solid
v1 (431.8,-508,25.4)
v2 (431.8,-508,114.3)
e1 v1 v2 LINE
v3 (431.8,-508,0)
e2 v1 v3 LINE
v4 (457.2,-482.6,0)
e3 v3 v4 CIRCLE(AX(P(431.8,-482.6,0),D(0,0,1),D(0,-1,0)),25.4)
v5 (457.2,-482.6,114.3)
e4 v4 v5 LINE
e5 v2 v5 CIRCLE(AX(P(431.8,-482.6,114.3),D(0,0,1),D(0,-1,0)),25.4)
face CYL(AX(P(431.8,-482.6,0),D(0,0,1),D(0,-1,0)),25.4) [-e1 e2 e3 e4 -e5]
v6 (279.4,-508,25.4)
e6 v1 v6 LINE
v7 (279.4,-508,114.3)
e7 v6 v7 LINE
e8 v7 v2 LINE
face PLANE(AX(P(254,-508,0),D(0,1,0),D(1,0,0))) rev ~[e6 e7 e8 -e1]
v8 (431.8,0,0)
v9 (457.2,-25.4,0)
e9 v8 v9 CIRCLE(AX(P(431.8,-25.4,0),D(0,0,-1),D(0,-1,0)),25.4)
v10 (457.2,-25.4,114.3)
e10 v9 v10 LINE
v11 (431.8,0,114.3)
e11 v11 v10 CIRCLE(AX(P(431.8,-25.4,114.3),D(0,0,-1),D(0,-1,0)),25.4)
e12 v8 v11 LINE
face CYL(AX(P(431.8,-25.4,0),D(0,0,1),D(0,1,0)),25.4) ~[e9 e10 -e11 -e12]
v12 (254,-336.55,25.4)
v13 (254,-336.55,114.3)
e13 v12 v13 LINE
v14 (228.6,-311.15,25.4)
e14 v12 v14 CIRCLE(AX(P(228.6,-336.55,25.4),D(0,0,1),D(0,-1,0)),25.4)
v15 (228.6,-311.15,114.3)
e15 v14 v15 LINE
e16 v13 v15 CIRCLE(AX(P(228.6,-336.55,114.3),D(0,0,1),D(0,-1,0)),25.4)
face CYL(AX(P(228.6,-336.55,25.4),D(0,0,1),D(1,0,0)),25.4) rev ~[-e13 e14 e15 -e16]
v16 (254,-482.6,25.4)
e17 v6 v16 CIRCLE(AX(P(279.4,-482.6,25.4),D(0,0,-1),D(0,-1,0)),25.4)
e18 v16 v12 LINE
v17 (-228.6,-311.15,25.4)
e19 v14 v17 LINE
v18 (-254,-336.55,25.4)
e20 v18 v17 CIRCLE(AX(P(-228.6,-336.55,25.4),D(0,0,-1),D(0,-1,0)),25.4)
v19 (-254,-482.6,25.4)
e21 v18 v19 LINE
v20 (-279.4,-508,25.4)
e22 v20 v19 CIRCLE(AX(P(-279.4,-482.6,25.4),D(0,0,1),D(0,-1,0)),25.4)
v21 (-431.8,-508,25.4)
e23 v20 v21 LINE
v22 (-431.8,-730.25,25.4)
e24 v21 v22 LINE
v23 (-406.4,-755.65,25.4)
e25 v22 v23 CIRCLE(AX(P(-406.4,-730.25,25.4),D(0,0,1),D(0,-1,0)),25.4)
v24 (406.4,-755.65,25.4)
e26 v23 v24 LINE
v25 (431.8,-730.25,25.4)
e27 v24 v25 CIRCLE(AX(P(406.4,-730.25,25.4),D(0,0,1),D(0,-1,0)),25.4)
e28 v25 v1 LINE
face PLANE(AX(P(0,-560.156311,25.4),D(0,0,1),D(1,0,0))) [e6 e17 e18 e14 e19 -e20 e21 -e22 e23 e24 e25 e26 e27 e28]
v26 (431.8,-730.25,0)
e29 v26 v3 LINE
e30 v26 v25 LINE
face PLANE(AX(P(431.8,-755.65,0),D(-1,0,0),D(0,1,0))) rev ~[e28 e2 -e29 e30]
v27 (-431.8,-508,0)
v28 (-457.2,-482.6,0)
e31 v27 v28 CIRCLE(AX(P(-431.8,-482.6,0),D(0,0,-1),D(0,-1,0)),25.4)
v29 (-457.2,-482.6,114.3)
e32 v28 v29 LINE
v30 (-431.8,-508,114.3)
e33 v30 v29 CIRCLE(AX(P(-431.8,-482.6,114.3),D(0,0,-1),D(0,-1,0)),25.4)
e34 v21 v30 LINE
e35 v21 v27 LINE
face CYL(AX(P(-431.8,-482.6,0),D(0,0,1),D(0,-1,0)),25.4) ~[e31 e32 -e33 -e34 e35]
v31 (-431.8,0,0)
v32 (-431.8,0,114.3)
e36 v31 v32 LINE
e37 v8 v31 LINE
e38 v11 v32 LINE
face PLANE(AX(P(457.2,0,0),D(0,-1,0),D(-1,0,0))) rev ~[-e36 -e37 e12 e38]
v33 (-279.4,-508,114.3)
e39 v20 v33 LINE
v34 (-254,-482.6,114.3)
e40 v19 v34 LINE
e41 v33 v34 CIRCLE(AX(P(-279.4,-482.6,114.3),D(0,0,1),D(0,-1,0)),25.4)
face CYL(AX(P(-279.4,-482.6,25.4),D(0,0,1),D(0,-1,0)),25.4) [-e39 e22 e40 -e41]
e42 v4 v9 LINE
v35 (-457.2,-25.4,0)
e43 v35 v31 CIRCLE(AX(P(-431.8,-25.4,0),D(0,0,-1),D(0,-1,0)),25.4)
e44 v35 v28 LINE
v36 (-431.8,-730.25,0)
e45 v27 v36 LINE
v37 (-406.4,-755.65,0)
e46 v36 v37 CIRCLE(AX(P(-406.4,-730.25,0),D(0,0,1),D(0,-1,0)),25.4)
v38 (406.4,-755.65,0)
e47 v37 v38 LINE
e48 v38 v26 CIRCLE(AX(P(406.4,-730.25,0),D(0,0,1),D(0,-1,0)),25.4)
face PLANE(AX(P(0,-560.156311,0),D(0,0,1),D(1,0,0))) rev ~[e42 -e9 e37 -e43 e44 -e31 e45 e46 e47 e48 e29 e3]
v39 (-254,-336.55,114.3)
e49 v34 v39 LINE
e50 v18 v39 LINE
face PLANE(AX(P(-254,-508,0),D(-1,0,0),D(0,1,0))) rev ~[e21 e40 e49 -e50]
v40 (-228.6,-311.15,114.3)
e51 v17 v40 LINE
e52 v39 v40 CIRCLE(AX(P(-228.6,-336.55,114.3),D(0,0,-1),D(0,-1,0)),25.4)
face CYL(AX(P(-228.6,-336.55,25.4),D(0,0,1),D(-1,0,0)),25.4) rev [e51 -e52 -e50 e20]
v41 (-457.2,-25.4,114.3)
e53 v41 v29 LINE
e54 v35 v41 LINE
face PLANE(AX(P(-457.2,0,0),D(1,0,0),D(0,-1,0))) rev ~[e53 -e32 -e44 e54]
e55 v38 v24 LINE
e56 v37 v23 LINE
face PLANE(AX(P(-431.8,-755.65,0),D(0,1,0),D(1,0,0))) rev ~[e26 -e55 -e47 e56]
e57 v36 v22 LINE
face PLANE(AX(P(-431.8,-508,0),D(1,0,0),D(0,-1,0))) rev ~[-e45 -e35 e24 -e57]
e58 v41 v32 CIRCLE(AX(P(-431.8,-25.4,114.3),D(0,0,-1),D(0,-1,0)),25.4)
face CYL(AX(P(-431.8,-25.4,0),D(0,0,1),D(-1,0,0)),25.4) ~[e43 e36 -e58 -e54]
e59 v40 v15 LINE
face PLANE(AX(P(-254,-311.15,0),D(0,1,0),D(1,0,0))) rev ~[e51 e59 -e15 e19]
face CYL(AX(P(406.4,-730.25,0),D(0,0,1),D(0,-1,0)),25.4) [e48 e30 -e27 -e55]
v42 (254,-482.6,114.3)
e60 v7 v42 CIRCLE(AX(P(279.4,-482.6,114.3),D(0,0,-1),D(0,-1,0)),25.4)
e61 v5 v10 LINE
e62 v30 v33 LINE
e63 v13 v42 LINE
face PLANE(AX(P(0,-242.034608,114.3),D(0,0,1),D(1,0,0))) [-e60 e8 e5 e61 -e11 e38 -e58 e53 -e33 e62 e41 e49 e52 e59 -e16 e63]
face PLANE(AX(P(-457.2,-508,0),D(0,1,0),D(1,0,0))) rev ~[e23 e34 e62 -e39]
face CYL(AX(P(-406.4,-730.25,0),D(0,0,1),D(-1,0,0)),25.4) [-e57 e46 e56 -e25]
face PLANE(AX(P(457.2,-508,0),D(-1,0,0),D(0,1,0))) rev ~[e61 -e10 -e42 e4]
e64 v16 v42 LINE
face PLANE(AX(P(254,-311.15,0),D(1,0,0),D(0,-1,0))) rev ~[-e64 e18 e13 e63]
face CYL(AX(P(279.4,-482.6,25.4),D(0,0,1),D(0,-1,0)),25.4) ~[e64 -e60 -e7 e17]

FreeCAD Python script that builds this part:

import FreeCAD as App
import Part
import Sketcher
from FreeCAD import Vector
Q = App.Units.Quantity


def edges_at(feature, points):
    """Names of the edges that pass closest to the given points."""
    edges = feature.Shape.Edges
    near = lambda p: min(range(len(edges)), key=lambda i: edges[i].distToShape(Part.Vertex(*p))[0])
    return sorted({f"Edge{near(p) + 1}" for p in points})

doc = App.newDocument("Part")
params = doc.addObject("Spreadsheet::Sheet", "Params")
for row, (alias, value) in enumerate([
    ("sketch1_width", "36 in"),
    ("sketch1_width2", "8 in"),
    ("sketch1_height", "7.75 in"),
    ("pad1_length", "4.5 in"),
    ("sketch2_width", "7 in"),
    ("sketch2_width2", "34 in"),
    ("sketch2_height", "9.75 in"),
    ("sketch2_height2", "7.75 in"),
    ("pad2_length", "1 in"),
    ("fillet_radius", "1 in"),
], start=1):
    params.set(f"A{row}", alias)
    params.set(f"B{row}", "=" + value)
    params.setAlias(f"B{row}", alias)

body = doc.addObject("PartDesign::Body", "Body")

# Sketch on XY plane
sketch1 = doc.addObject("Sketcher::SketchObject", "Sketch")
body.addObject(sketch1)
sketch1.AttachmentSupport = (doc.XY_Plane, [""])
sketch1.MapMode = "FlatFace"
sketch1.addGeometry([
    Part.LineSegment(Vector(457, 0, 0), Vector(-457, 0, 0)),  # 0
    Part.LineSegment(Vector(-457, 0, 0), Vector(-457, -508, 0)),  # 1
    Part.LineSegment(Vector(-457, -508, 0), Vector(-254, -508, 0)),  # 2
    Part.LineSegment(Vector(-254, -508, 0), Vector(-254, -311, 0)),  # 3
    Part.LineSegment(Vector(-254, -311, 0), Vector(254, -311, 0)),  # 4
    Part.LineSegment(Vector(254, -311, 0), Vector(254, -508, 0)),  # 5
    Part.LineSegment(Vector(254, -508, 0), Vector(457, -508, 0)),  # 6
    Part.LineSegment(Vector(457, -508, 0), Vector(457, 0, 0)),  # 7
], False)
sketch1.addConstraint([
    Sketcher.Constraint("Coincident", 0, 2, 1, 1),
    Sketcher.Constraint("Coincident", 1, 2, 2, 1),
    Sketcher.Constraint("Coincident", 2, 2, 3, 1),
    Sketcher.Constraint("Coincident", 3, 2, 4, 1),
    Sketcher.Constraint("Coincident", 4, 2, 5, 1),
    Sketcher.Constraint("Coincident", 5, 2, 6, 1),
    Sketcher.Constraint("Coincident", 6, 2, 7, 1),
    Sketcher.Constraint("Coincident", 7, 2, 0, 1),
    Sketcher.Constraint("Horizontal", 0),
    Sketcher.Constraint("Vertical", 1),
    Sketcher.Constraint("Horizontal", 2),
    Sketcher.Constraint("Vertical", 3),
    Sketcher.Constraint("Horizontal", 4),
    Sketcher.Constraint("Vertical", 5),
    Sketcher.Constraint("Horizontal", 6),
    Sketcher.Constraint("Vertical", 7),
    Sketcher.Constraint("Symmetric", 0, 2, 7, 2, -1, 1),
    Sketcher.Constraint("Symmetric", 2, 2, 5, 2, -2),
    Sketcher.Constraint("Equal", 4, 1),
    Sketcher.Constraint("DistanceX", 0, 2, 0, 1, Q("36 in")),
    Sketcher.Constraint("DistanceX", 2, 1, 2, 2, Q("8 in")),
    Sketcher.Constraint("DistanceY", 3, 1, 3, 2, Q("7.75 in")),
])
sketch1.setExpression("Constraints[19]", "Params.sketch1_width")
sketch1.setExpression("Constraints[20]", "Params.sketch1_width2")
sketch1.setExpression("Constraints[21]", "Params.sketch1_height")
pad1 = doc.addObject("PartDesign::Pad", "Pad")
body.addObject(pad1)
pad1.Profile = sketch1
pad1.setExpression("Length", "Params.pad1_length")

# Sketch on XY plane
sketch2 = doc.addObject("Sketcher::SketchObject", "Sketch001")
body.addObject(sketch2)
sketch2.AttachmentSupport = (doc.XY_Plane, [""])
sketch2.MapMode = "FlatFace"
sketch2.addGeometry([
    Part.LineSegment(Vector(-254, -508, 0), Vector(-432, -508, 0)),  # 0
    Part.LineSegment(Vector(-432, -508, 0), Vector(-432, -756, 0)),  # 1
    Part.LineSegment(Vector(-432, -756, 0), Vector(432, -756, 0)),  # 2
    Part.LineSegment(Vector(432, -756, 0), Vector(432, -508, 0)),  # 3
    Part.LineSegment(Vector(432, -508, 0), Vector(254, -508, 0)),  # 4
    Part.LineSegment(Vector(254, -508, 0), Vector(254, -311, 0)),  # 5
    Part.LineSegment(Vector(254, -311, 0), Vector(-254, -311, 0)),  # 6
    Part.LineSegment(Vector(-254, -311, 0), Vector(-254, -508, 0)),  # 7
], False)
sketch2.addConstraint([
    Sketcher.Constraint("Coincident", 0, 2, 1, 1),
    Sketcher.Constraint("Coincident", 1, 2, 2, 1),
    Sketcher.Constraint("Coincident", 2, 2, 3, 1),
    Sketcher.Constraint("Coincident", 3, 2, 4, 1),
    Sketcher.Constraint("Coincident", 4, 2, 5, 1),
    Sketcher.Constraint("Coincident", 5, 2, 6, 1),
    Sketcher.Constraint("Coincident", 6, 2, 7, 1),
    Sketcher.Constraint("Coincident", 7, 2, 0, 1),
    Sketcher.Constraint("Horizontal", 0),
    Sketcher.Constraint("Vertical", 1),
    Sketcher.Constraint("Horizontal", 2),
    Sketcher.Constraint("Vertical", 3),
    Sketcher.Constraint("Horizontal", 4),
    Sketcher.Constraint("Vertical", 5),
    Sketcher.Constraint("Horizontal", 6),
    Sketcher.Constraint("Vertical", 7),
    Sketcher.Constraint("Symmetric", 0, 2, 3, 2, -2),
    Sketcher.Constraint("Equal", 0, 4),
    Sketcher.Constraint("DistanceX", 0, 2, 0, 1, Q("7 in")),
    Sketcher.Constraint("DistanceX", 2, 1, 2, 2, Q("34 in")),
    Sketcher.Constraint("DistanceY", 0, 2, -1, 1, Q("20 in")),
    Sketcher.Constraint("DistanceY", 1, 2, 1, 1, Q("9.75 in")),
    Sketcher.Constraint("DistanceY", 5, 1, 5, 2, Q("7.75 in")),
])
sketch2.setExpression("Constraints[18]", "Params.sketch2_width")
sketch2.setExpression("Constraints[19]", "Params.sketch2_width2")
sketch2.setExpression("Constraints[21]", "Params.sketch2_height")
sketch2.setExpression("Constraints[22]", "Params.sketch2_height2")
pad2 = doc.addObject("PartDesign::Pad", "Pad001")
body.addObject(pad2)
pad2.Profile = sketch2
pad2.setExpression("Length", "Params.pad2_length")
doc.recompute()

fillet = doc.addObject("PartDesign::Fillet", "Fillet")
body.addObject(fillet)
fillet.Base = (pad2, edges_at(pad2, [
    (-457.2, -508, 57.15),
    (-431.8, -755.65, 12.7),
    (-254, -508, 69.85),
    (254, -311.15, 69.85),
    (254, -508, 69.85),
    (457.2, -508, 57.15),
    (431.8, -755.65, 12.7),
    (-254, -311.15, 69.85),
    (457.2, 0, 57.15),
    (-457.2, 0, 57.15),
]))
fillet.setExpression("Radius", "Params.fillet_radius")

doc.recompute()
